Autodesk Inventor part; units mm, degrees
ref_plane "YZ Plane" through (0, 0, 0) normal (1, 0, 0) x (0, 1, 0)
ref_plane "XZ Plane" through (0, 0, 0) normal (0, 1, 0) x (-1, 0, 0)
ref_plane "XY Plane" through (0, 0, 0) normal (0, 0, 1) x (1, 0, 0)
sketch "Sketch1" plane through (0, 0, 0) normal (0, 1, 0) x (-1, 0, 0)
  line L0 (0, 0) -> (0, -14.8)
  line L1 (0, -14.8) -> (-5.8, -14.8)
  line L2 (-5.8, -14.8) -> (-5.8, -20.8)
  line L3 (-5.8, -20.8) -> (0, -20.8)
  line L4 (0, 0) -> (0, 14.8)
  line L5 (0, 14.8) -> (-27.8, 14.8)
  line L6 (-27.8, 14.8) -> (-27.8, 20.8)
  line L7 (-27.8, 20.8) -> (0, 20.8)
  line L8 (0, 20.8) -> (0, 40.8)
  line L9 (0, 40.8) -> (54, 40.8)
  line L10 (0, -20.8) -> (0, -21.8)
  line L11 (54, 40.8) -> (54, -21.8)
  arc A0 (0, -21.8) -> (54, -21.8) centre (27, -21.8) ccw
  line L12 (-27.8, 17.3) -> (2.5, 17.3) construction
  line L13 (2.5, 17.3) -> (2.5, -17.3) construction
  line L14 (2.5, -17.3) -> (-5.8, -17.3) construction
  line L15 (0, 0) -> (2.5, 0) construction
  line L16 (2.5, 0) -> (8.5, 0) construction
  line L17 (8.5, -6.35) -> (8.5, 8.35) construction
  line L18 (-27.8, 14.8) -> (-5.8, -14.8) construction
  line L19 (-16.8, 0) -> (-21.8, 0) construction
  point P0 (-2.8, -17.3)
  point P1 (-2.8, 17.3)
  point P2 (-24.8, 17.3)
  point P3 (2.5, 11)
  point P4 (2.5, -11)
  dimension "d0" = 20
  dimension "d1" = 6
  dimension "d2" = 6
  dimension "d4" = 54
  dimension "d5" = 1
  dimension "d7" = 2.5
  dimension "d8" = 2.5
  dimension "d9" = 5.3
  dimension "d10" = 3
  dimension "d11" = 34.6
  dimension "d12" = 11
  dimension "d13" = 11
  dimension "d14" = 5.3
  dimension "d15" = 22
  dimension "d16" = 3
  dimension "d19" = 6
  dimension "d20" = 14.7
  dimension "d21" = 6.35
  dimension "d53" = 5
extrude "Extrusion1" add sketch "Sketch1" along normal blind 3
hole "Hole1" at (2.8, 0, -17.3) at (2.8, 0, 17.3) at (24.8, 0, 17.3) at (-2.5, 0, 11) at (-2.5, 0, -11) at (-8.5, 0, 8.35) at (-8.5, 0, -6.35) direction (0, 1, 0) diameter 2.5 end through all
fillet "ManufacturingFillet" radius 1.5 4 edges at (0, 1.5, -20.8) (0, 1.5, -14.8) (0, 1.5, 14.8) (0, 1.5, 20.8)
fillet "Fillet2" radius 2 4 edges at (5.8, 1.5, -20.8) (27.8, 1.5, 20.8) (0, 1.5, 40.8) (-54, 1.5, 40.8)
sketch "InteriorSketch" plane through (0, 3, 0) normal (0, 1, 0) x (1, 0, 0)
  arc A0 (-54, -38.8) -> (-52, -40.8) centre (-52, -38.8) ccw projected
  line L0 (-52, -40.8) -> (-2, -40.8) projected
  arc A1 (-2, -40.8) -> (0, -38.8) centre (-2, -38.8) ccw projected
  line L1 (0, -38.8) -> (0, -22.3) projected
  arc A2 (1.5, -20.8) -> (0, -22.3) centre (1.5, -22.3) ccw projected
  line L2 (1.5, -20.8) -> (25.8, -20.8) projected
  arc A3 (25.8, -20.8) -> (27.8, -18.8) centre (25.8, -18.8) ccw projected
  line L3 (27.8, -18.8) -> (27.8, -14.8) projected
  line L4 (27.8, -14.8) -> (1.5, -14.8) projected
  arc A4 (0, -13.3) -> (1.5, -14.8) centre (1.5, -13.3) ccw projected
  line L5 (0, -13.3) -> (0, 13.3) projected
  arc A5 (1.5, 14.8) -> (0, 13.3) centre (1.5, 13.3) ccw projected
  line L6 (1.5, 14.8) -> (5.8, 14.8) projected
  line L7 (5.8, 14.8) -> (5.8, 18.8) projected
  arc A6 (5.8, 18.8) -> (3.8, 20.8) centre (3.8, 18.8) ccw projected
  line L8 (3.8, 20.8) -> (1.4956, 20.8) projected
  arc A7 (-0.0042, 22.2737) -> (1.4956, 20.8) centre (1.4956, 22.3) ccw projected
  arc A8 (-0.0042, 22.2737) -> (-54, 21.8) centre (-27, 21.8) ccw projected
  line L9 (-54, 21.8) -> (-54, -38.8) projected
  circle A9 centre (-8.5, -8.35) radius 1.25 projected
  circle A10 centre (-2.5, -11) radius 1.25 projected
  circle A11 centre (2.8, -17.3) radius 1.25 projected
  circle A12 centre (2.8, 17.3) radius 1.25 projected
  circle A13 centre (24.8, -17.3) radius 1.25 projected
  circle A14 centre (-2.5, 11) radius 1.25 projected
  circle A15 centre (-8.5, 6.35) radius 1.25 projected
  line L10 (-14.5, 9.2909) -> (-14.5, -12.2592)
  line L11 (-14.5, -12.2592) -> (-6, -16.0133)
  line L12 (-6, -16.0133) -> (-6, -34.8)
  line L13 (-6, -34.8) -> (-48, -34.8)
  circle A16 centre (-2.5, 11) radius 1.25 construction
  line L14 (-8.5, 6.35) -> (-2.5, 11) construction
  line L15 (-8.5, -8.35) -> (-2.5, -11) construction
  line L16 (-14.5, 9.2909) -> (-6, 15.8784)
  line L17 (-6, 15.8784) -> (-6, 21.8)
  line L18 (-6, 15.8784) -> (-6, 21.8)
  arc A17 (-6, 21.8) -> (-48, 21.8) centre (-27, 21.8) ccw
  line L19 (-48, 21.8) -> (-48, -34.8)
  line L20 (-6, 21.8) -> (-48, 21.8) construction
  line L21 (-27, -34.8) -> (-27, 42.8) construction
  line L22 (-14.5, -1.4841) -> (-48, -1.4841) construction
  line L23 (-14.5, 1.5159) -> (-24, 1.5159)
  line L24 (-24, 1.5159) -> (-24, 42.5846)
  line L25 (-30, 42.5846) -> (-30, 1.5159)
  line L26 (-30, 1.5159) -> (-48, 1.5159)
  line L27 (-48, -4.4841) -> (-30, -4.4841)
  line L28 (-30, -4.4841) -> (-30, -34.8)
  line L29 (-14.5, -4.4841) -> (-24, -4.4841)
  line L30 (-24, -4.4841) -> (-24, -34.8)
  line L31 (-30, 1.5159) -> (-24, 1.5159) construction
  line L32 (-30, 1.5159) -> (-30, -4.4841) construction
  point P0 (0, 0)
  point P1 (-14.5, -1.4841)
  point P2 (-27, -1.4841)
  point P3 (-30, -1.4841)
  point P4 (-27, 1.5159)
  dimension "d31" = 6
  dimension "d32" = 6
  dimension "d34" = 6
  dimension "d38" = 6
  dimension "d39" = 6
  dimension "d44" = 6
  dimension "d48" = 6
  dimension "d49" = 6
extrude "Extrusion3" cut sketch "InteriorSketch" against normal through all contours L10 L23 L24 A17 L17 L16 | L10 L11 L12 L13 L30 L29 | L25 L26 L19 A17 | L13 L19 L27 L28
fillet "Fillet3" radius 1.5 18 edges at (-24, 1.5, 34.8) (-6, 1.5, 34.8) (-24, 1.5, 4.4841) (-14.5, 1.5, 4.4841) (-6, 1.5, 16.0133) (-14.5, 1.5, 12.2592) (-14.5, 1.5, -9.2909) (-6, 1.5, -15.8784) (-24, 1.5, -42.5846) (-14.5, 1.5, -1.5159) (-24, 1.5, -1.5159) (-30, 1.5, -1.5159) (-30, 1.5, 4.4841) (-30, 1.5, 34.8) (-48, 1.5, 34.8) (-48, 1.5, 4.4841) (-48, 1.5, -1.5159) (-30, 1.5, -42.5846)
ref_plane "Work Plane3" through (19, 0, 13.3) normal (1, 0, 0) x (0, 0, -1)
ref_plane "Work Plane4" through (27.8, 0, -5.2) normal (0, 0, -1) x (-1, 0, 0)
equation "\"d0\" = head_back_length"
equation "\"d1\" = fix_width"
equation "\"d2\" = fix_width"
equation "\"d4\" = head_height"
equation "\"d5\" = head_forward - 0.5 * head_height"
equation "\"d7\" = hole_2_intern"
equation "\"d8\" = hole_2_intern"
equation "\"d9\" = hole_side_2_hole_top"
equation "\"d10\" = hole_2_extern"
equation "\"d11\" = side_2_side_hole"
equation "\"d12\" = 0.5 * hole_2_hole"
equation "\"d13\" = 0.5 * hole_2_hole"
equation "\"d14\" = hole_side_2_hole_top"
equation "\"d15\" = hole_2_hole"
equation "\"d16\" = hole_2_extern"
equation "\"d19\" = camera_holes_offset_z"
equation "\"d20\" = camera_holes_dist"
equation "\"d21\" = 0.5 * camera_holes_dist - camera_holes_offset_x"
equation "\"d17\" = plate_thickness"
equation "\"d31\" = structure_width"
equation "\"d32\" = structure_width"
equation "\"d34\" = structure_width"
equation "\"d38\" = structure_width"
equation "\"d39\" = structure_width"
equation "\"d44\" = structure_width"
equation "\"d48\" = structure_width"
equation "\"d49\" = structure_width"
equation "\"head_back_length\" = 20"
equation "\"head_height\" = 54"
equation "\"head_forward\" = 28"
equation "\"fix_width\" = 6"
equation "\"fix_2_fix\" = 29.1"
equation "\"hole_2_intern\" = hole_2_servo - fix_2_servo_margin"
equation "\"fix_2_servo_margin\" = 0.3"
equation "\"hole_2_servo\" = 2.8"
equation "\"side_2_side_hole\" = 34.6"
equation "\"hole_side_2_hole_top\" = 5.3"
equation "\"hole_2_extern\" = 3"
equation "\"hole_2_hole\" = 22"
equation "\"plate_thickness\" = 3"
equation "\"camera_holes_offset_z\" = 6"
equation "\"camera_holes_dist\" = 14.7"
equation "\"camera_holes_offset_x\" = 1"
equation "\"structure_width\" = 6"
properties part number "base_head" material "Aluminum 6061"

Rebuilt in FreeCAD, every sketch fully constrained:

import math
import FreeCAD as App
import Part
import Sketcher
from FreeCAD import Vector
Q = App.Units.Quantity


def edges_at(feature, points):
    """Names of the edges that pass closest to the given points."""
    edges = feature.Shape.Edges
    near = lambda p: min(range(len(edges)), key=lambda i: edges[i].distToShape(Part.Vertex(*p))[0])
    return sorted({f"Edge{near(p) + 1}" for p in points})


def add_polygon(sketch, points):
    """Adds a closed chain of lines whose ends are joined by coincident constraints."""
    first, n = sketch.GeometryCount, len(points)
    for a, b in zip(points, points[1:] + points[:1]):
        sketch.addGeometry(Part.LineSegment(App.Vector(*a, 0), App.Vector(*b, 0)), False)
    for i in range(n):
        sketch.addConstraint(Sketcher.Constraint("Coincident", first + i, 2, first + (i + 1) % n, 1))

doc = App.newDocument("Part")
body = doc.addObject("PartDesign::Body", "Body")

sketch1 = body.newObject("Sketcher::SketchObject", "Sketch")
sketch1.AttachmentSupport = (doc.getObject("XZ_Plane"), [""])
sketch1.MapMode = "FlatFace"
sketch1.addGeometry([
    Part.LineSegment(Vector(0, 14.8, 0), Vector(0, -14.8, 0)),
    Part.LineSegment(Vector(0, -14.8, 0), Vector(5.8, -14.8, 0)),
    Part.LineSegment(Vector(5.8, -14.8, 0), Vector(5.8, -20.8, 0)),
    Part.LineSegment(Vector(5.8, -20.8, 0), Vector(0, -20.8, 0)),
    Part.LineSegment(Vector(0, -20.8, 0), Vector(0, -21.8, 0)),
    Part.ArcOfCircle(Part.Circle(Vector(-27, -21.8, 0), Vector(0, 0, 1), 27), math.radians(180), math.radians(360)),
    Part.LineSegment(Vector(-54, -21.8, 0), Vector(-54, 40.8, 0)),
    Part.LineSegment(Vector(-54, 40.8, 0), Vector(0, 40.8, 0)),
    Part.LineSegment(Vector(0, 40.8, 0), Vector(0, 20.8, 0)),
    Part.LineSegment(Vector(0, 20.8, 0), Vector(27.8, 20.8, 0)),
    Part.LineSegment(Vector(27.8, 20.8, 0), Vector(27.8, 14.8, 0)),
    Part.LineSegment(Vector(27.8, 14.8, 0), Vector(0, 14.8, 0)),
], False)
sketch1.addConstraint([
    Sketcher.Constraint("Coincident", 0, 2, 1, 1),
    Sketcher.Constraint("Coincident", 1, 2, 2, 1),
    Sketcher.Constraint("Coincident", 2, 2, 3, 1),
    Sketcher.Constraint("Coincident", 3, 2, 4, 1),
    Sketcher.Constraint("Tangent", 4, 2, 5, 2),
    Sketcher.Constraint("Tangent", 5, 1, 6, 1),
    Sketcher.Constraint("Coincident", 6, 2, 7, 1),
    Sketcher.Constraint("Coincident", 7, 2, 8, 1),
    Sketcher.Constraint("Coincident", 8, 2, 9, 1),
    Sketcher.Constraint("Coincident", 9, 2, 10, 1),
    Sketcher.Constraint("Coincident", 10, 2, 11, 1),
    Sketcher.Constraint("Coincident", 11, 2, 0, 1),
    Sketcher.Constraint("Vertical", 0),
    Sketcher.Constraint("Horizontal", 1),
    Sketcher.Constraint("Vertical", 2),
    Sketcher.Constraint("Horizontal", 3),
    Sketcher.Constraint("Vertical", 4),
    Sketcher.Constraint("Vertical", 6),
    Sketcher.Constraint("Horizontal", 7),
    Sketcher.Constraint("Vertical", 8),
    Sketcher.Constraint("Horizontal", 9),
    Sketcher.Constraint("Vertical", 10),
    Sketcher.Constraint("Horizontal", 11),
    Sketcher.Constraint("Symmetric", 3, 2, 8, 2, -1, 1),
    Sketcher.Constraint("Symmetric", 0, 2, 11, 2, -1, 1),
    Sketcher.Constraint("PointOnObject", 3, 2, -2),
    Sketcher.Constraint("Radius", 5, Q("27 mm")),
    Sketcher.Constraint("DistanceY", 2, 2, 2, 1, Q("6 mm")),
    Sketcher.Constraint("DistanceY", 4, 2, 4, 1, Q("1 mm")),
    Sketcher.Constraint("DistanceY", 8, 2, 8, 1, Q("20 mm")),
    Sketcher.Constraint("DistanceX", 1, 2, 9, 2, Q("22 mm")),
    Sketcher.Constraint("DistanceX", 1, 1, 1, 2, Q("5.8 mm")),
    Sketcher.Constraint("DistanceY", 0, 2, 0, 1, Q("29.6 mm")),
])
pad1 = body.newObject("PartDesign::Pad", "Pad")
pad1.Profile = sketch1
pad1.Length = 3
pad1.Reversed = True

sketch2 = body.newObject("Sketcher::SketchObject", "Sketch001")
sketch2.AttachmentSupport = (doc.getObject("XZ_Plane"), [""])
sketch2.MapMode = "FlatFace"
sketch2.addGeometry([
    Part.Circle(Vector(2.8, -17.3, 0), Vector(0, 0, 1), 1.2),
    Part.Circle(Vector(2.8, 17.3, 0), Vector(0, 0, 1), 1.2),
    Part.Circle(Vector(24.8, 17.3, 0), Vector(0, 0, 1), 1.2),
    Part.Circle(Vector(-2.5, 11, 0), Vector(0, 0, 1), 1.2),
    Part.Circle(Vector(-2.5, -11, 0), Vector(0, 0, 1), 1.2),
    Part.Circle(Vector(-8.5, 8.3, 0), Vector(0, 0, 1), 1.2),
    Part.Circle(Vector(-8.5, -6.3, 0), Vector(0, 0, 1), 1.2),
], False)
sketch2.addConstraint([
    Sketcher.Constraint("Equal", 0, 1),
    Sketcher.Constraint("Equal", 1, 2),
    Sketcher.Constraint("Equal", 2, 3),
    Sketcher.Constraint("Equal", 3, 4),
    Sketcher.Constraint("Equal", 4, 5),
    Sketcher.Constraint("Equal", 5, 6),
    Sketcher.Constraint("Symmetric", 0, 3, 1, 3, -1),
    Sketcher.Constraint("Symmetric", 3, 3, 4, 3, -1),
    Sketcher.Constraint("Horizontal", 1, 3, 2, 3),
    Sketcher.Constraint("Vertical", 5, 3, 6, 3),
    Sketcher.Constraint("Diameter", 0, Q("2.5 mm")),
    Sketcher.Constraint("DistanceY", -1, 1, 3, 3, Q("11 mm")),
    Sketcher.Constraint("DistanceX", 1, 3, 2, 3, Q("22 mm")),
    Sketcher.Constraint("DistanceX", 5, 3, 3, 3, Q("6 mm")),
    Sketcher.Constraint("DistanceX", -1, 1, 0, 3, Q("2.8 mm")),
    Sketcher.Constraint("DistanceY", 0, 3, -1, 1, Q("17.3 mm")),
    Sketcher.Constraint("DistanceX", 3, 3, -1, 1, Q("2.5 mm")),
    Sketcher.Constraint("DistanceY", 6, 3, 5, 3, Q("14.7 mm")),
    Sketcher.Constraint("DistanceY", -1, 1, 5, 3, Q("8.35 mm")),
])
doc.recompute()
hole = body.newObject("PartDesign::Hole", "Hole")
hole.Profile = sketch2
hole.ThreadType = "None"
hole.Diameter = 2.5
hole.DepthType = "ThroughAll"
doc.recompute()

fillet = body.newObject("PartDesign::Fillet", "Fillet")
fillet.Base = (hole, edges_at(hole, [
    (0, 1.5, -20.8),
    (0, 1.5, -14.8),
    (0, 1.5, 14.8),
    (0, 1.5, 20.8),
]))
fillet.Radius = 1.5
doc.recompute()

fillet2 = body.newObject("PartDesign::Fillet", "Fillet001")
fillet2.Base = (fillet, edges_at(fillet, [
    (5.8, 1.5, -20.8),
    (27.8, 1.5, 20.8),
    (0, 1.5, 40.8),
    (-54, 1.5, 40.8),
]))
fillet2.Radius = 2

sketch3 = body.newObject("Sketcher::SketchObject", "Sketch002")
sketch3.AttachmentSupport = (doc.getObject("XZ_Plane"), [""])
sketch3.MapMode = "FlatFace"
sketch3.AttachmentOffset = App.Placement(Vector(0, 0, -3), App.Rotation())
sketch3.addGeometry(Part.LineSegment(Vector(-14, -2, 0), Vector(-14, -9, 0)), False)
sketch3.addGeometry(Part.LineSegment(Vector(-14, -9, 0), Vector(-6, -16, 0)), False)
sketch3.addGeometry(Part.LineSegment(Vector(-6, -16, 0), Vector(-6, -22, 0)), False)
sketch3.addGeometry(Part.ArcOfCircle(Part.Circle(Vector(-27, -22, 0), Vector(0, 0, 1), 21), math.radians(-82), math.radians(0)), False)
sketch3.addGeometry(Part.LineSegment(Vector(-24, -43, 0), Vector(-24, -2, 0)), False)
sketch3.addGeometry(Part.LineSegment(Vector(-24, -2, 0), Vector(-14, -2, 0)), False)
add_polygon(sketch3, [(-14, 12), (-14, 4), (-24, 4), (-24, 35), (-6, 35), (-6, 16)])
sketch3.addGeometry(Part.LineSegment(Vector(-30, -2, 0), Vector(-30, -43, 0)), False)
sketch3.addGeometry(Part.ArcOfCircle(Part.Circle(Vector(-27, -22, 0), Vector(0, 0, 1), 21), math.radians(180), math.radians(262)), False)
sketch3.addGeometry(Part.LineSegment(Vector(-48, -22, 0), Vector(-48, -2, 0)), False)
sketch3.addGeometry(Part.LineSegment(Vector(-48, -2, 0), Vector(-30, -2, 0)), False)
add_polygon(sketch3, [(-48, 35), (-30, 35), (-30, 4), (-48, 4)])
sketch3.addConstraint([
    Sketcher.Constraint("Coincident", 0, 2, 1, 1),
    Sketcher.Constraint("Coincident", 1, 2, 2, 1),
    Sketcher.Constraint("Tangent", 2, 2, 3, 2),
    Sketcher.Constraint("Coincident", 3, 1, 4, 1),
    Sketcher.Constraint("Coincident", 4, 2, 5, 1),
    Sketcher.Constraint("Coincident", 5, 2, 0, 1),
    Sketcher.Constraint("Coincident", 12, 2, 13, 2),
    Sketcher.Constraint("Tangent", 13, 1, 14, 1),
    Sketcher.Constraint("Coincident", 14, 2, 15, 1),
    Sketcher.Constraint("Coincident", 15, 2, 12, 1),
    Sketcher.Constraint("Vertical", 0),
    Sketcher.Constraint("Vertical", 2),
    Sketcher.Constraint("Vertical", 4),
    Sketcher.Constraint("Horizontal", 5),
    Sketcher.Constraint("Vertical", 6),
    Sketcher.Constraint("Horizontal", 7),
    Sketcher.Constraint("Vertical", 8),
    Sketcher.Constraint("Horizontal", 9),
    Sketcher.Constraint("Vertical", 10),
    Sketcher.Constraint("Vertical", 12),
    Sketcher.Constraint("Vertical", 14),
    Sketcher.Constraint("Horizontal", 15),
    Sketcher.Constraint("Horizontal", 16),
    Sketcher.Constraint("Vertical", 17),
    Sketcher.Constraint("Horizontal", 18),
    Sketcher.Constraint("Vertical", 19),
    Sketcher.Constraint("Coincident", 13, 3, 3, 3),
    Sketcher.Constraint("Equal", 3, 13),
    Sketcher.Constraint("Horizontal", 3, 1, 12, 2),
    Sketcher.Constraint("Horizontal", 5, 2, 14, 2),
    Sketcher.Constraint("Horizontal", 9, 2, 16, 2),
    Sketcher.Constraint("Horizontal", 7, 2, 17, 2),
    Sketcher.Constraint("Vertical", 5, 2, 6, 2),
    Sketcher.Constraint("Vertical", 4, 2, 7, 2),
    Sketcher.Constraint("Vertical", 2, 2, 9, 2),
    Sketcher.Constraint("Vertical", 15, 2, 16, 2),
    Sketcher.Constraint("Vertical", 14, 2, 18, 2),
    Sketcher.Constraint("Equal", 0, 6),
    Sketcher.Constraint("DistanceX", 1, 2, -1, 1, Q("6 mm")),
    Sketcher.Constraint("Radius", 3, Q("21 mm")),
    Sketcher.Constraint("DistanceY", 5, 2, 6, 2, Q("6 mm")),
    Sketcher.Constraint("DistanceX", 12, 2, 3, 1, Q("6 mm")),
    Sketcher.Constraint("DistanceX", 5, 1, 5, 2, Q("9.5 mm")),
    Sketcher.Constraint("DistanceY", 3, 3, -1, 1, Q("21.8 mm")),
    Sketcher.Constraint("DistanceY", -1, 1, 8, 2, Q("34.8 mm")),
    Sketcher.Constraint("Angle", 11, Q("-156.171 deg")),
    Sketcher.Constraint("DistanceY", 0, 2, 0, 1, Q("7.775 mm")),
    Sketcher.Constraint("DistanceY", 8, 1, 8, 2, Q("30.316 mm")),
    Sketcher.Constraint("DistanceY", 2, 2, 2, 1, Q("5.9216 mm")),
])
pocket1 = body.newObject("PartDesign::Pocket", "Pocket")
pocket1.Profile = sketch3
pocket1.Type = "ThroughAll"
pocket1.Reversed = True
doc.recompute()

fillet3 = body.newObject("PartDesign::Fillet", "Fillet002")
fillet3.Base = (pocket1, edges_at(pocket1, [
    (-24, 1.5, 34.8),
    (-6, 1.5, 34.8),
    (-24, 1.5, 4.484),
    (-14.5, 1.5, 4.484),
    (-6, 1.5, 16.013),
    (-14.5, 1.5, 12.259),
    (-14.5, 1.5, -9.291),
    (-6, 1.5, -15.878),
    (-24, 1.5, -42.585),
    (-14.5, 1.5, -1.516),
    (-24, 1.5, -1.516),
    (-30, 1.5, -1.516),
    (-30, 1.5, 4.484),
    (-30, 1.5, 34.8),
    (-48, 1.5, 34.8),
    (-48, 1.5, 4.484),
    (-48, 1.5, -1.516),
    (-30, 1.5, -42.585),
]))
fillet3.Radius = 1.5

doc.recompute()
